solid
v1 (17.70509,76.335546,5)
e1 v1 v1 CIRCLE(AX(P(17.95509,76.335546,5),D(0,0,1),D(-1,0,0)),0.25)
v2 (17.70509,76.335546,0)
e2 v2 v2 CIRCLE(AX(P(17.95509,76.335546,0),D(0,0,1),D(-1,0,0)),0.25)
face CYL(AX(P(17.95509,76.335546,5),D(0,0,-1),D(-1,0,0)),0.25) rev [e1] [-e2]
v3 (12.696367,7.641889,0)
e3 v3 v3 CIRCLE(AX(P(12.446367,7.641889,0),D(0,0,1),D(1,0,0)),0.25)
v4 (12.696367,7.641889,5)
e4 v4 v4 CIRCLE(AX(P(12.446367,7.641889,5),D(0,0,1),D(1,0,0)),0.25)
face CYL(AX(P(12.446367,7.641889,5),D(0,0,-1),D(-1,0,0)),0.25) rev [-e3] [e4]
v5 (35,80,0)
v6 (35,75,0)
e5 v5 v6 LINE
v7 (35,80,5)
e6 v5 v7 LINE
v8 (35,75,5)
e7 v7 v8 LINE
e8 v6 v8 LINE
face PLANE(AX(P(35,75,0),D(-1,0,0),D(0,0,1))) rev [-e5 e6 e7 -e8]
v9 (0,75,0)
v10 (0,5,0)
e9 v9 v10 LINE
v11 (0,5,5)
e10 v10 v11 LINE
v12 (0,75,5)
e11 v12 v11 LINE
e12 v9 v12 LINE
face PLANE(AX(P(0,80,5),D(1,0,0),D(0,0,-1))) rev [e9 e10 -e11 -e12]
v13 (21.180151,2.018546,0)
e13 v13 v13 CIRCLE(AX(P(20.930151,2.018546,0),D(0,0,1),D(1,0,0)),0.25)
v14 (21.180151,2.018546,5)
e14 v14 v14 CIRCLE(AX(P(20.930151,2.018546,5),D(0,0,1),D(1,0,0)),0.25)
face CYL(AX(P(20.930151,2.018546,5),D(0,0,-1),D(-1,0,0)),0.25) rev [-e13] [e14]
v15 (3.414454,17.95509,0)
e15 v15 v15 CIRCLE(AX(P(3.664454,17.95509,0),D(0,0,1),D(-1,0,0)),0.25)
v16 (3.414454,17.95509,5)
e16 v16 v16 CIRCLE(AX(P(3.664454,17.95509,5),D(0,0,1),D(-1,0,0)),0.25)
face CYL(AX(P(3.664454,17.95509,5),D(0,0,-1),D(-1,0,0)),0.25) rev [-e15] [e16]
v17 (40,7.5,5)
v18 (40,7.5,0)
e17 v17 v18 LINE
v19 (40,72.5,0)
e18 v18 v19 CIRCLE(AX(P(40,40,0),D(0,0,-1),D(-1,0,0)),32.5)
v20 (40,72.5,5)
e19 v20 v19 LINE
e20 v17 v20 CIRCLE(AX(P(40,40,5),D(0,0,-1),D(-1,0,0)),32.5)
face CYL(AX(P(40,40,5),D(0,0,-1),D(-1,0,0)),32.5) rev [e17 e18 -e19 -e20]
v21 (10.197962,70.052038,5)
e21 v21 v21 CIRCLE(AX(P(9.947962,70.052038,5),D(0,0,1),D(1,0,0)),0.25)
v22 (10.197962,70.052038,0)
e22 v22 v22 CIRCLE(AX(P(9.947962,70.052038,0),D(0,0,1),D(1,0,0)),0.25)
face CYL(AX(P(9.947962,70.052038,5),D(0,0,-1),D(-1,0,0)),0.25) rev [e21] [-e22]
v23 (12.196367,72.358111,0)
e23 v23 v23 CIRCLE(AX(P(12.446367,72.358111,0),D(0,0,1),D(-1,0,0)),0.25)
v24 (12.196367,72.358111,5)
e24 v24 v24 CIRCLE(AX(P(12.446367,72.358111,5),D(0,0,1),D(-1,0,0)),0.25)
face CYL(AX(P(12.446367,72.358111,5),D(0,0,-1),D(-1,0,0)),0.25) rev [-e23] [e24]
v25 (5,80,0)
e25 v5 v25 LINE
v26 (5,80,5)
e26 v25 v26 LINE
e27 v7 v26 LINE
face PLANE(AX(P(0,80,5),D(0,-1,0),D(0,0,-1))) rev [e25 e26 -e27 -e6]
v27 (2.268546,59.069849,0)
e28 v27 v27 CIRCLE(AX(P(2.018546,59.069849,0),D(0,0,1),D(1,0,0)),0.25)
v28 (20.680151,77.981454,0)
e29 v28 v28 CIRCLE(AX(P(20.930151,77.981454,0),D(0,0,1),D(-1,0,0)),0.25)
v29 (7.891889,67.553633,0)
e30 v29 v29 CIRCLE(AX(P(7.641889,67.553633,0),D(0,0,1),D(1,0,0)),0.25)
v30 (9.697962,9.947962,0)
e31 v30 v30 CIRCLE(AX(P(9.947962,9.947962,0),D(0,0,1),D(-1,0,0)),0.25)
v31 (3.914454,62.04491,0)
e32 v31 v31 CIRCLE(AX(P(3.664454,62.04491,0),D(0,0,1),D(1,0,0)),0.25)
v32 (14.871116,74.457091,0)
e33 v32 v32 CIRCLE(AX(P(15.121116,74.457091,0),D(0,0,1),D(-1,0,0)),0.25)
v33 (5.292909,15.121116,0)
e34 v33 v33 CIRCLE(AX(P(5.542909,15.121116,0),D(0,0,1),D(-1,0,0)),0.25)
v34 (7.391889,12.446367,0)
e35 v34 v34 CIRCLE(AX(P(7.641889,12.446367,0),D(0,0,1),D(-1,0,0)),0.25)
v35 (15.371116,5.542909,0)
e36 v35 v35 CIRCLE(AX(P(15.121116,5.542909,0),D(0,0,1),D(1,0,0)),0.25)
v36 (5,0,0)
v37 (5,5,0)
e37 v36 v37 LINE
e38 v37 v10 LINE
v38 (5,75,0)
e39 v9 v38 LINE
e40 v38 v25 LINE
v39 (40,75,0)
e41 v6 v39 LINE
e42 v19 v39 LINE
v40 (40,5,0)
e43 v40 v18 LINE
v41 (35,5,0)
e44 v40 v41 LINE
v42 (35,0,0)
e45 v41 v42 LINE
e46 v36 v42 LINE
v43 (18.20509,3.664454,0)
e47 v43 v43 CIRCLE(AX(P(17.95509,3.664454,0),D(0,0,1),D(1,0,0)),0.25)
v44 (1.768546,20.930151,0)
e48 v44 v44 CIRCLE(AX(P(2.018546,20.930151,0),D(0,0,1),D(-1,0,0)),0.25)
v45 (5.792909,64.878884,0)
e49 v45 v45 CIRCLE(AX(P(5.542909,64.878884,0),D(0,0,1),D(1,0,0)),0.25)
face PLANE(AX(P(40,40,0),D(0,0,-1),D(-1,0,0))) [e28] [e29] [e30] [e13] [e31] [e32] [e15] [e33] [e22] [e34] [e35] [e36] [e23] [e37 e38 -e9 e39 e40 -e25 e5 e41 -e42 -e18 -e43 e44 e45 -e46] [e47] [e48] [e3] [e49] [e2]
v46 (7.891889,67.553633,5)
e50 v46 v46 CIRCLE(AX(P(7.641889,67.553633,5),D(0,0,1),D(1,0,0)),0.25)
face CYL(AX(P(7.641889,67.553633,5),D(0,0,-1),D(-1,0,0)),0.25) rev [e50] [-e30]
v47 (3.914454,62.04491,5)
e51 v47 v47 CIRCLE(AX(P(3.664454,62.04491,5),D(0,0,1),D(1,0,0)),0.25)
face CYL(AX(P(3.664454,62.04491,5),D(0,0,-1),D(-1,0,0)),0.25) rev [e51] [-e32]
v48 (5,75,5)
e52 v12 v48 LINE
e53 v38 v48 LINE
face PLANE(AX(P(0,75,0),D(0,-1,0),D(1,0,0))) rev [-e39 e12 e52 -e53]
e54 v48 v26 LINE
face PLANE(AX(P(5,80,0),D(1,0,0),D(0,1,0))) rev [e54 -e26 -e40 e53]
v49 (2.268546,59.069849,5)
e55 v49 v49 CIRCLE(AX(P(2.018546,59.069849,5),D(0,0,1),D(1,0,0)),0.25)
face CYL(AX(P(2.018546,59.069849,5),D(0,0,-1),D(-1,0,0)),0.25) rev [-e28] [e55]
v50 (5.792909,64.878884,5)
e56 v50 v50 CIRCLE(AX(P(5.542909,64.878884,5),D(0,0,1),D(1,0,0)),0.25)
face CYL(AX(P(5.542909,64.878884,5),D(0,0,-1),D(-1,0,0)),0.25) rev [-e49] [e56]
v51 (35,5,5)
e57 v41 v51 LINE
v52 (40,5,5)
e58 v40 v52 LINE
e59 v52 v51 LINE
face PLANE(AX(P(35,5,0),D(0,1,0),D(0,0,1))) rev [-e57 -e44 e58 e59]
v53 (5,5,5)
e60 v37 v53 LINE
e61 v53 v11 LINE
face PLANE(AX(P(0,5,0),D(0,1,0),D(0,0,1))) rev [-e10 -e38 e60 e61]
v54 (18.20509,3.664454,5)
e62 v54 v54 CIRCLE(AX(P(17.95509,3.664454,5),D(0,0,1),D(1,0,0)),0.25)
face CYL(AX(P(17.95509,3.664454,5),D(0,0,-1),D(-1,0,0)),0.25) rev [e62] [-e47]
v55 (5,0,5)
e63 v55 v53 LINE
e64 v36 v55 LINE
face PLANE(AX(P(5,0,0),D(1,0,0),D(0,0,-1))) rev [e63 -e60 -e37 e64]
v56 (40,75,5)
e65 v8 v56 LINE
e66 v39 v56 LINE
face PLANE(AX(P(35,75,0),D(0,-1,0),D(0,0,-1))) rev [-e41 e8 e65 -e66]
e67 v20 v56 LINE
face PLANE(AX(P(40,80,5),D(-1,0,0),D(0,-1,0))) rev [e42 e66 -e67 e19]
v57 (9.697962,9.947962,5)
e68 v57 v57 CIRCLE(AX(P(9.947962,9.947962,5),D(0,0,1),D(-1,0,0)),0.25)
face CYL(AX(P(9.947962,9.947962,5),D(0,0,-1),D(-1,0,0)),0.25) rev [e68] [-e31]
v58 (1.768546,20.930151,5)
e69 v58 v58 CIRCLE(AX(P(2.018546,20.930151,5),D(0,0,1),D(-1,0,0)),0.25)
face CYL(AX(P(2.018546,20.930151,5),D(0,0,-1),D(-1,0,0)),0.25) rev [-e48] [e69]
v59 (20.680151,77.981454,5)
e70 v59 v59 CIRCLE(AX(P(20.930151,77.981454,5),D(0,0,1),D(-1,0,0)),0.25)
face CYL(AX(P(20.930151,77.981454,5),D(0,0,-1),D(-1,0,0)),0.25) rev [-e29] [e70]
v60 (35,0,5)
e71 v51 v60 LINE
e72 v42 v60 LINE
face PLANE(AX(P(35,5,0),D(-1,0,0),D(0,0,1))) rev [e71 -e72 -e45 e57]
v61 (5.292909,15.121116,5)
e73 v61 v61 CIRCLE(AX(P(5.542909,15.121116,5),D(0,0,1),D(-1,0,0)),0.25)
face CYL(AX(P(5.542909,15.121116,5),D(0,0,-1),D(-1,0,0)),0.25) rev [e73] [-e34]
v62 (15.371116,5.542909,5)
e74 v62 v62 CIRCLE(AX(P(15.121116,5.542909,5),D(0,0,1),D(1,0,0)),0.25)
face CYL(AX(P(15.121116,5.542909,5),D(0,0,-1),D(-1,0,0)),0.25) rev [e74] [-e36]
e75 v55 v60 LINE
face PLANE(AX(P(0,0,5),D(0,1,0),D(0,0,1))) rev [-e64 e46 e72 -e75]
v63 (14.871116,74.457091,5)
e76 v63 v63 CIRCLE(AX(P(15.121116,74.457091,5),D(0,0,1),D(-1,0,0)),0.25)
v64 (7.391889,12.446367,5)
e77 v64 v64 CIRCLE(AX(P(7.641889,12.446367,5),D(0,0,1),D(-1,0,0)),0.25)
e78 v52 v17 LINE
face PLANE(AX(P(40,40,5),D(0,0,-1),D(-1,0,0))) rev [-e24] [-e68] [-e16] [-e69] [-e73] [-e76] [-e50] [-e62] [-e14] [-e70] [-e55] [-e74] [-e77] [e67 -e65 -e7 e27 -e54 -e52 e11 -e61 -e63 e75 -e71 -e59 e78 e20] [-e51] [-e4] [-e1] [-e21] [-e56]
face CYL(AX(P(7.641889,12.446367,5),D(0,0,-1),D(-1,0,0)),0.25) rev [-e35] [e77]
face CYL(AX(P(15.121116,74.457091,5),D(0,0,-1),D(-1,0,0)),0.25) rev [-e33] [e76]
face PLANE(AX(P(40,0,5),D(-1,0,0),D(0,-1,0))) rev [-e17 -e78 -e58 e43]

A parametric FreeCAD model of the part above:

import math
import FreeCAD as App
import Part
import Sketcher
from FreeCAD import Vector
Q = App.Units.Quantity

doc = App.newDocument("Part")
body = doc.addObject("PartDesign::Body", "Body")

# Sketch on XY plane
sketch1 = body.newObject("Sketcher::SketchObject", "Sketch")
sketch1.AttachmentSupport = (doc.getObject("XY_Plane"), [""])
sketch1.MapMode = "FlatFace"
sketch1.addGeometry([
    Part.LineSegment(Vector(40, 80, 0), Vector(0, 80, 0)),  # 0
    Part.LineSegment(Vector(0, 80, 0), Vector(0, 0, 0)),  # 1
    Part.LineSegment(Vector(0, 0, 0), Vector(40, 0, 0)),  # 2
    Part.LineSegment(Vector(40, 0, 0), Vector(40, 7.5, 0)),  # 3
    Part.ArcOfCircle(Part.Circle(Vector(40, 40, 0), Vector(0, 0, 1), 32.5), math.radians(90), math.radians(270)),  # 4
    Part.LineSegment(Vector(40, 72.5, 0), Vector(40, 80, 0)),  # 5
    Part.Circle(Vector(20.93, 2.02, 0), Vector(0, 0, 1), 0.25),  # 6
    Part.Circle(Vector(17.96, 3.66, 0), Vector(0, 0, 1), 0.25),  # 7
    Part.Circle(Vector(15.12, 5.54, 0), Vector(0, 0, 1), 0.25),  # 8
    Part.Circle(Vector(12.45, 7.64, 0), Vector(0, 0, 1), 0.25),  # 9
    Part.Circle(Vector(9.95, 9.95, 0), Vector(0, 0, 1), 0.25),  # 10
    Part.Circle(Vector(7.64, 12.45, 0), Vector(0, 0, 1), 0.25),  # 11
    Part.Circle(Vector(5.54, 15.12, 0), Vector(0, 0, 1), 0.25),  # 12
    Part.Circle(Vector(3.66, 17.96, 0), Vector(0, 0, 1), 0.25),  # 13
    Part.Circle(Vector(2.02, 20.93, 0), Vector(0, 0, 1), 0.25),  # 14
    Part.Circle(Vector(20.93, 77.98, 0), Vector(0, 0, 1), 0.25),  # 15
    Part.Circle(Vector(17.96, 76.34, 0), Vector(0, 0, 1), 0.25),  # 16
    Part.Circle(Vector(15.12, 74.46, 0), Vector(0, 0, 1), 0.25),  # 17
    Part.Circle(Vector(12.45, 72.36, 0), Vector(0, 0, 1), 0.25),  # 18
    Part.Circle(Vector(2.02, 59.07, 0), Vector(0, 0, 1), 0.25),  # 19
    Part.Circle(Vector(7.64, 67.55, 0), Vector(0, 0, 1), 0.25),  # 20
    Part.Circle(Vector(9.95, 70.05, 0), Vector(0, 0, 1), 0.25),  # 21
    Part.Circle(Vector(5.54, 64.88, 0), Vector(0, 0, 1), 0.25),  # 22
    Part.Circle(Vector(3.66, 62.04, 0), Vector(0, 0, 1), 0.25),  # 23
], False)
sketch1.addConstraint([
    Sketcher.Constraint("Coincident", 0, 2, 1, 1),
    Sketcher.Constraint("Coincident", 1, 2, 2, 1),
    Sketcher.Constraint("Coincident", 2, 2, 3, 1),
    Sketcher.Constraint("Coincident", 3, 2, 4, 2),
    Sketcher.Constraint("Coincident", 4, 1, 5, 1),
    Sketcher.Constraint("Coincident", 5, 2, 0, 1),
    Sketcher.Constraint("Horizontal", 0),
    Sketcher.Constraint("Vertical", 1),
    Sketcher.Constraint("Horizontal", 2),
    Sketcher.Constraint("Vertical", 3),
    Sketcher.Constraint("Vertical", 5),
    Sketcher.Constraint("Coincident", 1, 2, -1, 1),
    Sketcher.Constraint("Equal", 6, 7),
    Sketcher.Constraint("Equal", 7, 8),
    Sketcher.Constraint("Equal", 8, 9),
    Sketcher.Constraint("Equal", 9, 10),
    Sketcher.Constraint("Equal", 10, 11),
    Sketcher.Constraint("Equal", 11, 12),
    Sketcher.Constraint("Equal", 12, 13),
    Sketcher.Constraint("Equal", 13, 14),
    Sketcher.Constraint("Equal", 14, 15),
    Sketcher.Constraint("Equal", 15, 16),
    Sketcher.Constraint("Equal", 16, 17),
    Sketcher.Constraint("Equal", 17, 18),
    Sketcher.Constraint("Equal", 18, 19),
    Sketcher.Constraint("Equal", 19, 20),
    Sketcher.Constraint("Equal", 20, 21),
    Sketcher.Constraint("Equal", 21, 22),
    Sketcher.Constraint("Equal", 22, 23),
    Sketcher.Constraint("Vertical", 6, 3, 15, 3),
    Sketcher.Constraint("Vertical", 7, 3, 16, 3),
    Sketcher.Constraint("Vertical", 8, 3, 17, 3),
    Sketcher.Constraint("Vertical", 9, 3, 18, 3),
    Sketcher.Constraint("Vertical", 14, 3, 19, 3),
    Sketcher.Constraint("Vertical", 11, 3, 20, 3),
    Sketcher.Constraint("Vertical", 10, 3, 21, 3),
    Sketcher.Constraint("Vertical", 12, 3, 22, 3),
    Sketcher.Constraint("Vertical", 13, 3, 23, 3),
    Sketcher.Constraint("Vertical", 4, 3, 2, 2),
    Sketcher.Constraint("Vertical", 3, 2, 4, 1),
    Sketcher.Constraint("Equal", 3, 5),
    Sketcher.Constraint("Diameter", 6, Q("0.5 mm")),
    Sketcher.Constraint("Radius", 4, Q("32.5 mm")),
    Sketcher.Constraint("DistanceX", 0, 2, 0, 1, Q("40 mm")),
    Sketcher.Constraint("DistanceY", 1, 2, 1, 1, Q("80 mm")),
    Sketcher.Constraint("DistanceY", 13, 3, 17, 3, Q("56.502002 mm")),
    Sketcher.Constraint("DistanceX", 11, 3, 7, 3, Q("10.3132 mm")),
    Sketcher.Constraint("DistanceY", 9, 3, 13, 3, Q("10.3132 mm")),
    Sketcher.Constraint("DistanceY", 14, 3, 19, 3, Q("38.139699 mm")),
    Sketcher.Constraint("DistanceY", 23, 3, 18, 3, Q("10.3132 mm")),
    Sketcher.Constraint("DistanceX", -1, 1, 6, 3, Q("20.930151 mm")),
    Sketcher.Constraint("DistanceX", -1, 1, 7, 3, Q("17.95509 mm")),
    Sketcher.Constraint("DistanceY", -1, 1, 8, 3, Q("5.542909 mm")),
    Sketcher.Constraint("DistanceY", -1, 1, 9, 3, Q("7.641889 mm")),
    Sketcher.Constraint("DistanceX", -1, 1, 10, 3, Q("9.947962 mm")),
    Sketcher.Constraint("DistanceY", -1, 1, 10, 3, Q("9.947962 mm")),
    Sketcher.Constraint("DistanceX", -1, 1, 12, 3, Q("5.542909 mm")),
    Sketcher.Constraint("DistanceY", -1, 1, 14, 3, Q("20.930151 mm")),
    Sketcher.Constraint("DistanceY", -1, 1, 18, 3, Q("72.358111 mm")),
    Sketcher.Constraint("DistanceY", -1, 1, 21, 3, Q("70.052038 mm")),
    Sketcher.Constraint("DistanceX", 9, 3, 8, 3, Q("2.674749 mm")),
    Sketcher.Constraint("DistanceY", 7, 3, 10, 3, Q("6.283508 mm")),
    Sketcher.Constraint("DistanceY", 8, 3, 11, 3, Q("6.903458 mm")),
    Sketcher.Constraint("DistanceY", 6, 3, 11, 3, Q("10.427821 mm")),
    Sketcher.Constraint("DistanceY", 11, 3, 12, 3, Q("2.674749 mm")),
    Sketcher.Constraint("DistanceX", 12, 3, 9, 3, Q("6.903458 mm")),
    Sketcher.Constraint("DistanceX", 13, 3, 10, 3, Q("6.283508 mm")),
    Sketcher.Constraint("DistanceX", 14, 3, 9, 3, Q("10.427821 mm")),
    Sketcher.Constraint("DistanceY", 12, 3, 16, 3, Q("61.21443 mm")),
    Sketcher.Constraint("DistanceY", 20, 3, 17, 3, Q("6.903458 mm")),
    Sketcher.Constraint("DistanceY", 20, 3, 15, 3, Q("10.427821 mm")),
    Sketcher.Constraint("DistanceY", 22, 3, 20, 3, Q("2.674749 mm")),
])
pad1 = body.newObject("PartDesign::Pad", "Pad")
pad1.Profile = sketch1
pad1.Length = 5

# Sketch on XY plane
sketch2 = body.newObject("Sketcher::SketchObject", "Sketch001")
sketch2.AttachmentSupport = (doc.getObject("XY_Plane"), [""])
sketch2.MapMode = "FlatFace"
sketch2.AttachmentOffset = App.Placement(Vector(0, 0, 5), App.Rotation())
sketch2.addGeometry([
    Part.LineSegment(Vector(0, 5, 0), Vector(0, 0, 0)),  # 0
    Part.LineSegment(Vector(0, 0, 0), Vector(5, 0, 0)),  # 1
    Part.LineSegment(Vector(5, 0, 0), Vector(5, 5, 0)),  # 2
    Part.LineSegment(Vector(5, 5, 0), Vector(0, 5, 0)),  # 3
    Part.LineSegment(Vector(35, 5, 0), Vector(35, 0, 0)),  # 4
    Part.LineSegment(Vector(35, 0, 0), Vector(40, 0, 0)),  # 5
    Part.LineSegment(Vector(40, 0, 0), Vector(40, 5, 0)),  # 6
    Part.LineSegment(Vector(40, 5, 0), Vector(35, 5, 0)),  # 7
    Part.LineSegment(Vector(35, 80, 0), Vector(35, 75, 0)),  # 8
    Part.LineSegment(Vector(35, 75, 0), Vector(40, 75, 0)),  # 9
    Part.LineSegment(Vector(40, 75, 0), Vector(40, 80, 0)),  # 10
    Part.LineSegment(Vector(40, 80, 0), Vector(35, 80, 0)),  # 11
    Part.LineSegment(Vector(0, 80, 0), Vector(0, 75, 0)),  # 12
    Part.LineSegment(Vector(0, 75, 0), Vector(5, 75, 0)),  # 13
    Part.LineSegment(Vector(5, 75, 0), Vector(5, 80, 0)),  # 14
    Part.LineSegment(Vector(5, 80, 0), Vector(0, 80, 0)),  # 15
], False)
sketch2.addConstraint([
    Sketcher.Constraint("Coincident", 0, 2, 1, 1),
    Sketcher.Constraint("Coincident", 1, 2, 2, 1),
    Sketcher.Constraint("Coincident", 2, 2, 3, 1),
    Sketcher.Constraint("Coincident", 3, 2, 0, 1),
    Sketcher.Constraint("Coincident", 4, 2, 5, 1),
    Sketcher.Constraint("Coincident", 5, 2, 6, 1),
    Sketcher.Constraint("Coincident", 6, 2, 7, 1),
    Sketcher.Constraint("Coincident", 7, 2, 4, 1),
    Sketcher.Constraint("Coincident", 8, 2, 9, 1),
    Sketcher.Constraint("Coincident", 9, 2, 10, 1),
    Sketcher.Constraint("Coincident", 10, 2, 11, 1),
    Sketcher.Constraint("Coincident", 11, 2, 8, 1),
    Sketcher.Constraint("Coincident", 12, 2, 13, 1),
    Sketcher.Constraint("Coincident", 13, 2, 14, 1),
    Sketcher.Constraint("Coincident", 14, 2, 15, 1),
    Sketcher.Constraint("Coincident", 15, 2, 12, 1),
    Sketcher.Constraint("Vertical", 0),
    Sketcher.Constraint("Horizontal", 1),
    Sketcher.Constraint("Vertical", 2),
    Sketcher.Constraint("Horizontal", 3),
    Sketcher.Constraint("Vertical", 4),
    Sketcher.Constraint("Horizontal", 5),
    Sketcher.Constraint("Vertical", 6),
    Sketcher.Constraint("Horizontal", 7),
    Sketcher.Constraint("Vertical", 8),
    Sketcher.Constraint("Horizontal", 9),
    Sketcher.Constraint("Vertical", 10),
    Sketcher.Constraint("Horizontal", 11),
    Sketcher.Constraint("Vertical", 12),
    Sketcher.Constraint("Horizontal", 13),
    Sketcher.Constraint("Vertical", 14),
    Sketcher.Constraint("Horizontal", 15),
    Sketcher.Constraint("Coincident", 0, 2, -1, 1),
    Sketcher.Constraint("PointOnObject", 4, 2, -1),
    Sketcher.Constraint("PointOnObject", 12, 2, -2),
    Sketcher.Constraint("Horizontal", 3, 2, 6, 2),
    Sketcher.Constraint("Horizontal", 9, 2, 12, 2),
    Sketcher.Constraint("Horizontal", 11, 2, 14, 2),
    Sketcher.Constraint("Vertical", 7, 2, 8, 2),
    Sketcher.Constraint("Vertical", 6, 2, 9, 2),
    Sketcher.Constraint("Vertical", 2, 2, 13, 2),
    Sketcher.Constraint("Equal", 3, 5),
    Sketcher.Constraint("Equal", 15, 0),
    Sketcher.Constraint("Equal", 6, 8),
    Sketcher.Constraint("DistanceX", 1, 1, 1, 2, Q("5 mm")),
    Sketcher.Constraint("DistanceX", -1, 1, 4, 2, Q("35 mm")),
    Sketcher.Constraint("DistanceY", -1, 1, 8, 2, Q("75 mm")),
])
pocket1 = body.newObject("PartDesign::Pocket", "Pocket")
pocket1.Profile = sketch2
pocket1.Length = 5

doc.recompute()
